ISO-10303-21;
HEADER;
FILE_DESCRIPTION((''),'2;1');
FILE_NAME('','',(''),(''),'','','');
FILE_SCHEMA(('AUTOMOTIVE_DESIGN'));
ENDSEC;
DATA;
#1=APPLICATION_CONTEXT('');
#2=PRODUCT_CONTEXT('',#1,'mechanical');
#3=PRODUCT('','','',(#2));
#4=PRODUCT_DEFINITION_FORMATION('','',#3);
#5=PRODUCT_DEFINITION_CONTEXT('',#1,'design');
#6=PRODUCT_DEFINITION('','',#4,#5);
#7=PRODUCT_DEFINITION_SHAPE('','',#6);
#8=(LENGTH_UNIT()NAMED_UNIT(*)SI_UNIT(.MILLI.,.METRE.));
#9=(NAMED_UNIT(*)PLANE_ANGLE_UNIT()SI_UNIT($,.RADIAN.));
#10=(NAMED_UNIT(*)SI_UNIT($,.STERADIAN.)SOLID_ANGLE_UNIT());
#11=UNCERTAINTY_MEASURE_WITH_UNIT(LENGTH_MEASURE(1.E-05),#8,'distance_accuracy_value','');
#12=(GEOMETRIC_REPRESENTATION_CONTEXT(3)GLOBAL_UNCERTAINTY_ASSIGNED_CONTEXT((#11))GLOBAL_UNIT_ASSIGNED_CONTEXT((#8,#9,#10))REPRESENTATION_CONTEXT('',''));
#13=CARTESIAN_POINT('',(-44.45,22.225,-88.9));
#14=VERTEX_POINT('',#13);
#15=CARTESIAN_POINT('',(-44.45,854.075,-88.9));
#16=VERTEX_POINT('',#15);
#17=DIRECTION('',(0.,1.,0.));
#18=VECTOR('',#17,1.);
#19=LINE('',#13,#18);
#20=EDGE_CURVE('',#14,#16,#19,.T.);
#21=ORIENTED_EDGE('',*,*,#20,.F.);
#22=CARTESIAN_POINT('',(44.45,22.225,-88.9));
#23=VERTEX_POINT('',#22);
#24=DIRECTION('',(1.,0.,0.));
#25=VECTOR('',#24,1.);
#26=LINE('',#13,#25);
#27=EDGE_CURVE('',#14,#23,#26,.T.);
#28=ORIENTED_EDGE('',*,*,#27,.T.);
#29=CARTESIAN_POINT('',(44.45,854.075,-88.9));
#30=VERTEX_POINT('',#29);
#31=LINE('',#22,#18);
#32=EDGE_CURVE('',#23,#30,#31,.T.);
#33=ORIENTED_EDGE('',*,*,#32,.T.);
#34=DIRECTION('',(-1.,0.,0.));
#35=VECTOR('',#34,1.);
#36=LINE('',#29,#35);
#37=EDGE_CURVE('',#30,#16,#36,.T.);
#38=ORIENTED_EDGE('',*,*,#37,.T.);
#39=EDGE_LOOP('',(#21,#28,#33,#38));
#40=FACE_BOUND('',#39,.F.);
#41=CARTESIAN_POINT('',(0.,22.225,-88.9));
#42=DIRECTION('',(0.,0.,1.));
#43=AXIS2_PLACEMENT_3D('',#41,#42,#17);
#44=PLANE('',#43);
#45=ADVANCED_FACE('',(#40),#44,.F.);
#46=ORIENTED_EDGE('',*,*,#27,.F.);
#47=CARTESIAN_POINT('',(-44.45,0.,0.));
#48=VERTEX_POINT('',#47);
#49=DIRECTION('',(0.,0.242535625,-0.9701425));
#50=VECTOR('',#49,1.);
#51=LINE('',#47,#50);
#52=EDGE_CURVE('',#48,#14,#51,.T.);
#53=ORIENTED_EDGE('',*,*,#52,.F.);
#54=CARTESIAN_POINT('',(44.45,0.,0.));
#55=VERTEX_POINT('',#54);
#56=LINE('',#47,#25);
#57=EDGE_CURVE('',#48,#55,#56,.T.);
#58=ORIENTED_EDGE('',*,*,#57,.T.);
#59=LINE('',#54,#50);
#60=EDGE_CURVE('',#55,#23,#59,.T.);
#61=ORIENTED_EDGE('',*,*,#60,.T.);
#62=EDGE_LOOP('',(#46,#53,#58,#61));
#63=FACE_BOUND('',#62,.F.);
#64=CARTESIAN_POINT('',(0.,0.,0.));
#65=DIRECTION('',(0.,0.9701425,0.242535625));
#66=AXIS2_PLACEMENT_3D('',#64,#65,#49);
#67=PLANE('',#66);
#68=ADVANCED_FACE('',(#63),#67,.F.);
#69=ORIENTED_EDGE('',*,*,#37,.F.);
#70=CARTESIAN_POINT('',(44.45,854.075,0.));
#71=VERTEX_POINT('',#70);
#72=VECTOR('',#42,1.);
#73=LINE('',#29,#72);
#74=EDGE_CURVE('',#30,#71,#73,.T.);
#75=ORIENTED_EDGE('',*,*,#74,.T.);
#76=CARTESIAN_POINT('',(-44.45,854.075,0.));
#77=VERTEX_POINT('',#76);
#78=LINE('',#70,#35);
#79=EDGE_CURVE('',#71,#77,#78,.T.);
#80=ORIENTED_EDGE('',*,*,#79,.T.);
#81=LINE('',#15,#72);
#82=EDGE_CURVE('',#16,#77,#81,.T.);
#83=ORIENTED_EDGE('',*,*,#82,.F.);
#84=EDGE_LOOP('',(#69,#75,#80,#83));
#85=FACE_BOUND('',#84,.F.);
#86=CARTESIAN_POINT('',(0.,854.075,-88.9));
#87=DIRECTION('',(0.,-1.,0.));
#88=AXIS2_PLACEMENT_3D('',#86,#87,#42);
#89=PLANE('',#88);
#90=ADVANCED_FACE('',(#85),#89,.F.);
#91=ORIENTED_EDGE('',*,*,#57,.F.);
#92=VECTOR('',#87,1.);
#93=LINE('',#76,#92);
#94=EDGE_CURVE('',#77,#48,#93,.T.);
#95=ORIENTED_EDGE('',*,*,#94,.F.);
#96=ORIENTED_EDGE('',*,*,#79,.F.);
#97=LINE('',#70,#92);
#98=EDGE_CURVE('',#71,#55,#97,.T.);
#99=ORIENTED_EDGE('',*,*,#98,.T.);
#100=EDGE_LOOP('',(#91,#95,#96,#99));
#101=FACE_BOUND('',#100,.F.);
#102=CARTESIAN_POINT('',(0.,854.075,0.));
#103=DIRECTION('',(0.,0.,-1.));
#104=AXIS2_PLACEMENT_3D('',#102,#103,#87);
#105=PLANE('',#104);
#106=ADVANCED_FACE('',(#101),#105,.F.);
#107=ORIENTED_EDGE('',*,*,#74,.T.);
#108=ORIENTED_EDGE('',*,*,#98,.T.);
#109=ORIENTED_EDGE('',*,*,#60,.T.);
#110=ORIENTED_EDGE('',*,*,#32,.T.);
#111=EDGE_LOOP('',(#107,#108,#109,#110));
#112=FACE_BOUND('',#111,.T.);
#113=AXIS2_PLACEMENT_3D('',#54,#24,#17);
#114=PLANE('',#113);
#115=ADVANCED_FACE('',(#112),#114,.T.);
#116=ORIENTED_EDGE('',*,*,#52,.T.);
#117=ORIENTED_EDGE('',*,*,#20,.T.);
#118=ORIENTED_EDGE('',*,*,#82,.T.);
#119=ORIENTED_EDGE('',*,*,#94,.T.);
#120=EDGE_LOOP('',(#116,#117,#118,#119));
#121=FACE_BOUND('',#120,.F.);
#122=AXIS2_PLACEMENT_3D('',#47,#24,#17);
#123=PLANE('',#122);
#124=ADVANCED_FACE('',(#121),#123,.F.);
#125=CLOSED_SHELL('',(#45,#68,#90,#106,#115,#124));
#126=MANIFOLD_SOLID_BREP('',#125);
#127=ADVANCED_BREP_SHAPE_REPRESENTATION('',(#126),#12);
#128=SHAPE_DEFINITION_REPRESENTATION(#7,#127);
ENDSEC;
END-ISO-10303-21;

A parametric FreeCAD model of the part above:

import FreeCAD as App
import Part
import Sketcher
Q = App.Units.Quantity


def add_polygon(sketch, points):
    """Adds a closed chain of lines whose ends are joined by coincident constraints."""
    first, n = sketch.GeometryCount, len(points)
    for a, b in zip(points, points[1:] + points[:1]):
        sketch.addGeometry(Part.LineSegment(App.Vector(*a, 0), App.Vector(*b, 0)), False)
    for i in range(n):
        sketch.addConstraint(Sketcher.Constraint("Coincident", first + i, 2, first + (i + 1) % n, 1))

doc = App.newDocument("Part")
body = doc.addObject("PartDesign::Body", "Body")

# Sketch on YZ plane
sketch1 = body.newObject("Sketcher::SketchObject", "Sketch")
sketch1.AttachmentSupport = (doc.getObject("YZ_Plane"), [""])
sketch1.MapMode = "FlatFace"
add_polygon(sketch1, [(854.075, 0), (0, 0), (22.225, -88.9), (854.075, -88.9)])  # lines 0-3
sketch1.addConstraint(Sketcher.Constraint("Horizontal", 0))
sketch1.addConstraint(Sketcher.Constraint("Horizontal", 2))
sketch1.addConstraint(Sketcher.Constraint("Vertical", 3))
sketch1.addConstraint(Sketcher.Constraint("Coincident", 0, 2, -1, 1))
sketch1.addConstraint(Sketcher.Constraint("DistanceY", 3, 1, 3, 2, Q("3.5 in")))
sketch1.addConstraint(Sketcher.Constraint("DistanceX", 0, 2, 0, 1, Q("33.625 in")))
sketch1.addConstraint(Sketcher.Constraint("DistanceX", 2, 1, 2, 2, Q("32.75 in")))
pad1 = body.newObject("PartDesign::Pad", "Pad")
pad1.Profile = sketch1
pad1.Length = Q("3.5 in")
pad1.Midplane = True

doc.recompute()
